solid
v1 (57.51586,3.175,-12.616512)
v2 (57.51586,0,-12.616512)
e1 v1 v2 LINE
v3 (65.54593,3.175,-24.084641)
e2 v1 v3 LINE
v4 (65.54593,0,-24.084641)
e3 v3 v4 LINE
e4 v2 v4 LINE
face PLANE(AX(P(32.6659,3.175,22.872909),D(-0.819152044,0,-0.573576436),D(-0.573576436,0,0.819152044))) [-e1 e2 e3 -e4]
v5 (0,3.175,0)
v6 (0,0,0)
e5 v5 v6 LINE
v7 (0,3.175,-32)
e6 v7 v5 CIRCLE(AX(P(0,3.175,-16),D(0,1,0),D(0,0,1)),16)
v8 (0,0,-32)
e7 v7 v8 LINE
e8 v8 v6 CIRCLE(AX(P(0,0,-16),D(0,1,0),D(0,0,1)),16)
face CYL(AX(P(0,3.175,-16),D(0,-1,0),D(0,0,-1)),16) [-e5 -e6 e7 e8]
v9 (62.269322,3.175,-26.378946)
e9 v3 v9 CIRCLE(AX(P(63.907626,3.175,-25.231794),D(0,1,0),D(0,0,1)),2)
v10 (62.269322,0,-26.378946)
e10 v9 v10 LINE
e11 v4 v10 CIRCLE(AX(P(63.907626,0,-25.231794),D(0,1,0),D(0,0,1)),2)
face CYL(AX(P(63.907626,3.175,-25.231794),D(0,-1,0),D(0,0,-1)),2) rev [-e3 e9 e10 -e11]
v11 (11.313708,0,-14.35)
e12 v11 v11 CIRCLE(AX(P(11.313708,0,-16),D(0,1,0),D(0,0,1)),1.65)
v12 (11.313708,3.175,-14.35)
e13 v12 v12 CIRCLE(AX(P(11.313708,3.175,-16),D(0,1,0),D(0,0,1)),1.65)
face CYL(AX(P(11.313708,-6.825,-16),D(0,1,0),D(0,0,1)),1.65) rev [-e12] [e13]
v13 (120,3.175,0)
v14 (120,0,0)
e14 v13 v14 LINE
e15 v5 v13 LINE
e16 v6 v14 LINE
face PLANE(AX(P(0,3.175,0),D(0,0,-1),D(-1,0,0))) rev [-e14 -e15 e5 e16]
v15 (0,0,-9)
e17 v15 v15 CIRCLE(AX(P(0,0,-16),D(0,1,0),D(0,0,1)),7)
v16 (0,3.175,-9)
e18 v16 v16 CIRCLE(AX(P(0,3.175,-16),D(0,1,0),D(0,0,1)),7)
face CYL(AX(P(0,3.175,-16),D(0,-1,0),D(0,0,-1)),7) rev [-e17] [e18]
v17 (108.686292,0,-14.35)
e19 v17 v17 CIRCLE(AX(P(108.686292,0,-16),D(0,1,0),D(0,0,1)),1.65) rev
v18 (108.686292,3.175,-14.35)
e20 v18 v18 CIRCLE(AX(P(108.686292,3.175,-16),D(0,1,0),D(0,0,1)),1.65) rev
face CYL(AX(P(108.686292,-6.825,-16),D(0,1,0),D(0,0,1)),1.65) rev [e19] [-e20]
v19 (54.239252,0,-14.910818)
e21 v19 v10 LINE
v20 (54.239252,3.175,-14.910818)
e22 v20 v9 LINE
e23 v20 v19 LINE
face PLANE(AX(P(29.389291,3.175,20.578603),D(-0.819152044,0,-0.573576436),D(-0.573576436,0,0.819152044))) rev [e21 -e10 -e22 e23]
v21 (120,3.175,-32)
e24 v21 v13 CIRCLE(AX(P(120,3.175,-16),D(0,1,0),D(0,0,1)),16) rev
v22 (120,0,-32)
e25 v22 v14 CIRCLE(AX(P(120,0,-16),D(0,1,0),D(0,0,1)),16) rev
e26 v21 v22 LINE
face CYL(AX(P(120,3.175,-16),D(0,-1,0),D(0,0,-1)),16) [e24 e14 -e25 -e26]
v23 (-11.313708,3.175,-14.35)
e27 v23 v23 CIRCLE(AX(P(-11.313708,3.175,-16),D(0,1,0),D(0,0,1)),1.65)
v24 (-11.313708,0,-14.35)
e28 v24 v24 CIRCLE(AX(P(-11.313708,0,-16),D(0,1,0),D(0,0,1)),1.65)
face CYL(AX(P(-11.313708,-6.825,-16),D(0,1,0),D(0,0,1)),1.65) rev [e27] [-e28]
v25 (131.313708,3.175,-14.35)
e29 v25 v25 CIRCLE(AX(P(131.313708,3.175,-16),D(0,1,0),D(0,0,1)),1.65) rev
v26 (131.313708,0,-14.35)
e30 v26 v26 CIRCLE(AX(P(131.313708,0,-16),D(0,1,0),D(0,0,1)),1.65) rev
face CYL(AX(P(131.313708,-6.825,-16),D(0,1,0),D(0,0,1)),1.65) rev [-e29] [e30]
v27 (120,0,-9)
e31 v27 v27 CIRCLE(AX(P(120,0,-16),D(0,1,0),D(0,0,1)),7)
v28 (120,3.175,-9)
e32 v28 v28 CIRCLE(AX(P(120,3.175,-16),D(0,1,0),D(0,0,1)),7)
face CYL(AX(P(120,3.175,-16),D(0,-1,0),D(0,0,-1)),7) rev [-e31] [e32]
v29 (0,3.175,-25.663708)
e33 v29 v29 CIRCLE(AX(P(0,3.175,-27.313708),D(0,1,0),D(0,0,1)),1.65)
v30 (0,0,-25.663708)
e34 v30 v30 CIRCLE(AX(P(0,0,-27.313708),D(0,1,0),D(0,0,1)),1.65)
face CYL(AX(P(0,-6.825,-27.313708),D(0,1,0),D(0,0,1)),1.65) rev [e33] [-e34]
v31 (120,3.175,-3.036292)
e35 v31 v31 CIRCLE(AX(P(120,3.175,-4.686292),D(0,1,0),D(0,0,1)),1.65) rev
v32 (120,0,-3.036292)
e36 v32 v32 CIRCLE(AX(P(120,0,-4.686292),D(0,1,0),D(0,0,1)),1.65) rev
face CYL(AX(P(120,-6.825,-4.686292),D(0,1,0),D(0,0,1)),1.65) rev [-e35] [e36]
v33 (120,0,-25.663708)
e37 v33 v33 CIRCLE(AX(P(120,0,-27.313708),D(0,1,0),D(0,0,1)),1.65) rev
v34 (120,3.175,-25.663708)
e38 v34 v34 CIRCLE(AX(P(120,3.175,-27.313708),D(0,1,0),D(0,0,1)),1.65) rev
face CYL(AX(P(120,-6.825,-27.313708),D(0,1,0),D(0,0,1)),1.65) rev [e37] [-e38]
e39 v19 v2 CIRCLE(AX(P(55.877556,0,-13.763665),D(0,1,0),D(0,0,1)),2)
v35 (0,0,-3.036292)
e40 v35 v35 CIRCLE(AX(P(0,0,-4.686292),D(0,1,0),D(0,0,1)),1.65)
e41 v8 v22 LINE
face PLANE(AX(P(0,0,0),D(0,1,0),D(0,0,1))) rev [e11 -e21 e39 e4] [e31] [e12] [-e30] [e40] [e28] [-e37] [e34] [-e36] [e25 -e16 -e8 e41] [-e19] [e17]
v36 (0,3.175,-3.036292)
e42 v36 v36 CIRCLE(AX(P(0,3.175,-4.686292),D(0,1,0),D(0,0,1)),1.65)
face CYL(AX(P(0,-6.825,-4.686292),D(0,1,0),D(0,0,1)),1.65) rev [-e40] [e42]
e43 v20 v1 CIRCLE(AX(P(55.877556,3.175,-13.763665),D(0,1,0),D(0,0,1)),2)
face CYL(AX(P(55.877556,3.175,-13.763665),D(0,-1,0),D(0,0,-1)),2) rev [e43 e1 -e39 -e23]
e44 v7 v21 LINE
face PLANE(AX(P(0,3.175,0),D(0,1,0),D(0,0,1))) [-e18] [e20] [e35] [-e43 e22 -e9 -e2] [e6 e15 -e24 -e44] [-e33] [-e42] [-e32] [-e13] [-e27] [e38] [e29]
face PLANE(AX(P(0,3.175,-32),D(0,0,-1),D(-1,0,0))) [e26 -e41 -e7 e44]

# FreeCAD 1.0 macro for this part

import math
import FreeCAD as App
import Part
import Sketcher
Q = App.Units.Quantity

doc = App.newDocument("Part")
body = doc.addObject("PartDesign::Body", "Body")

# Sketch on XZ plane
sketch1 = body.newObject("Sketcher::SketchObject", "Sketch")
sketch1.AttachmentSupport = (doc.getObject("XZ_Plane"), [""])
sketch1.MapMode = "FlatFace"
sketch1.addGeometry([
    Part.LineSegment(App.Vector(0, 0, 0), App.Vector(120, 0, 0)),  # 0
    Part.ArcOfCircle(Part.Circle(App.Vector(120, -16, 0), App.Vector(0, 0, 1), 16), math.radians(-90), math.radians(90)),  # 1
    Part.LineSegment(App.Vector(120, -32, 0), App.Vector(0, -32, 0)),  # 2
    Part.ArcOfCircle(Part.Circle(App.Vector(0, -16, 0), App.Vector(0, 0, 1), 16), math.radians(90), math.radians(270)),  # 3
    Part.Circle(App.Vector(0, -16, 0), App.Vector(0, 0, 1), 7),  # 4
    Part.Circle(App.Vector(120, -16, 0), App.Vector(0, 0, 1), 7),  # 5
    Part.ArcOfCircle(Part.Circle(App.Vector(55.9, -13.8, 0), App.Vector(0, 0, 1), 2), math.radians(35), math.radians(215)),  # 6
    Part.LineSegment(App.Vector(54.2, -14.9, 0), App.Vector(62.3, -26.4, 0)),  # 7
    Part.ArcOfCircle(Part.Circle(App.Vector(63.9, -25.2, 0), App.Vector(0, 0, 1), 2), math.radians(-145), math.radians(35)),  # 8
    Part.LineSegment(App.Vector(65.5, -24.1, 0), App.Vector(57.5, -12.6, 0)),  # 9
], False)
sketch1.addConstraint([
    Sketcher.Constraint("Tangent", 0, 2, 1, 2),
    Sketcher.Constraint("Tangent", 1, 1, 2, 1),
    Sketcher.Constraint("Tangent", 2, 2, 3, 2),
    Sketcher.Constraint("Tangent", 3, 1, 0, 1),
    Sketcher.Constraint("Tangent", 6, 2, 7, 1),
    Sketcher.Constraint("Tangent", 7, 2, 8, 1),
    Sketcher.Constraint("Tangent", 8, 2, 9, 1),
    Sketcher.Constraint("Tangent", 9, 2, 6, 1),
    Sketcher.Constraint("Horizontal", 0),
    Sketcher.Constraint("Horizontal", 2),
    Sketcher.Constraint("Coincident", 3, 1, -1, 1),
    Sketcher.Constraint("Coincident", 4, 3, 3, 3),
    Sketcher.Constraint("Coincident", 5, 3, 1, 3),
    Sketcher.Constraint("Equal", 4, 5),
    Sketcher.Constraint("Equal", 6, 8),
    Sketcher.Constraint("Diameter", 4, 14.0),
    Sketcher.Constraint("Radius", 1, 16.0),
    Sketcher.Constraint("Radius", 6, 2.0),
    Sketcher.Constraint("DistanceX", 0, 1, 0, 2, 120.0),
    Sketcher.Constraint("Angle", 7, Q("-55 deg")),
    Sketcher.Constraint("Distance", 7, 14.0),
    Sketcher.Constraint("DistanceX", -1, 1, 6, 2, 54.239252),
    Sketcher.Constraint("DistanceY", 8, 2, -1, 1, 24.084641),
])
pad1 = body.newObject("PartDesign::Pad", "Pad")
pad1.Profile = sketch1
pad1.Length = 3.175
pad1.Reversed = True

# Sketch on XZ plane
sketch2 = body.newObject("Sketcher::SketchObject", "Sketch001")
sketch2.AttachmentSupport = (doc.getObject("XZ_Plane"), [""])
sketch2.MapMode = "FlatFace"
sketch2.AttachmentOffset = App.Placement(App.Vector(0, 0, -3.175), App.Rotation())
sketch2.addGeometry([
    Part.Circle(App.Vector(120, -27.3, 0), App.Vector(0, 0, 1), 1.6),  # 0
    Part.Circle(App.Vector(108.7, -16, 0), App.Vector(0, 0, 1), 1.6),  # 1
    Part.Circle(App.Vector(120, -4.7, 0), App.Vector(0, 0, 1), 1.6),  # 2
    Part.Circle(App.Vector(131.3, -16, 0), App.Vector(0, 0, 1), 1.6),  # 3
    Part.Circle(App.Vector(-11.3, -16, 0), App.Vector(0, 0, 1), 1.6),  # 4
    Part.Circle(App.Vector(0, -27.3, 0), App.Vector(0, 0, 1), 1.6),  # 5
    Part.Circle(App.Vector(11.3, -16, 0), App.Vector(0, 0, 1), 1.6),  # 6
    Part.Circle(App.Vector(0, -4.7, 0), App.Vector(0, 0, 1), 1.6),  # 7
], False)
sketch2.addConstraint([
    Sketcher.Constraint("Equal", 0, 1),
    Sketcher.Constraint("Equal", 1, 2),
    Sketcher.Constraint("Equal", 2, 3),
    Sketcher.Constraint("Equal", 3, 4),
    Sketcher.Constraint("Equal", 4, 5),
    Sketcher.Constraint("Equal", 5, 6),
    Sketcher.Constraint("Equal", 6, 7),
    Sketcher.Constraint("Symmetric", 4, 3, 6, 3, -2),
    Sketcher.Constraint("PointOnObject", 5, 3, -2),
    Sketcher.Constraint("PointOnObject", 7, 3, -2),
    Sketcher.Constraint("Horizontal", 1, 3, 3, 3),
    Sketcher.Constraint("Horizontal", 3, 3, 4, 3),
    Sketcher.Constraint("Horizontal", 0, 3, 5, 3),
    Sketcher.Constraint("Horizontal", 2, 3, 7, 3),
    Sketcher.Constraint("Vertical", 0, 3, 2, 3),
    Sketcher.Constraint("Diameter", 0, 3.3),
    Sketcher.Constraint("DistanceX", -1, 1, 0, 3, 120.0),
    Sketcher.Constraint("DistanceY", 1, 3, -1, 1, 16.0),
    Sketcher.Constraint("DistanceX", 4, 3, 1, 3, 120.0),
    Sketcher.Constraint("DistanceY", 0, 3, -1, 1, 27.313708),
    Sketcher.Constraint("DistanceX", -1, 1, 1, 3, 108.686292),
    Sketcher.Constraint("DistanceY", 2, 3, -1, 1, 4.686292),
    Sketcher.Constraint("DistanceX", -1, 1, 3, 3, 131.313708),
])
pocket1 = body.newObject("PartDesign::Pocket", "Pocket")
pocket1.Profile = sketch2
pocket1.Length = 10
pocket1.Reversed = True

doc.recompute()
